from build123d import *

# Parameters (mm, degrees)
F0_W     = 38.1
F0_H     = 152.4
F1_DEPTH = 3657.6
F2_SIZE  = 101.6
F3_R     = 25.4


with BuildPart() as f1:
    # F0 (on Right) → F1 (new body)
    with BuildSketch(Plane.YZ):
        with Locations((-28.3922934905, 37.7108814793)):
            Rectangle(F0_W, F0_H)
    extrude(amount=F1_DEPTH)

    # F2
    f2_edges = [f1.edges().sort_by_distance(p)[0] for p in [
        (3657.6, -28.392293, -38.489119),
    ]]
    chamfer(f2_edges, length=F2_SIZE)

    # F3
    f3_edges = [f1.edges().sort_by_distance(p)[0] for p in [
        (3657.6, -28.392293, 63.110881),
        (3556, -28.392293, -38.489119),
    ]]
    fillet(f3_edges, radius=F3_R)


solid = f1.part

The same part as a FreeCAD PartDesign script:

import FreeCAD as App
import Part
import Sketcher

V = App.Vector
Q = App.Units.Quantity


def edges_at(feature, points):
    """Names of the edges that pass closest to the given points."""
    edges = feature.Shape.Edges
    near = lambda p: min(range(len(edges)), key=lambda i: edges[i].distToShape(Part.Vertex(*p))[0])
    return sorted({f"Edge{near(p) + 1}" for p in points})


def add_polygon(sketch, points):
    """Adds a closed chain of lines whose ends are joined by coincident constraints."""
    first, n = sketch.GeometryCount, len(points)
    for a, b in zip(points, points[1:] + points[:1]):
        sketch.addGeometry(Part.LineSegment(App.Vector(*a, 0), App.Vector(*b, 0)), False)
    for i in range(n):
        sketch.addConstraint(Sketcher.Constraint("Coincident", first + i, 2, first + (i + 1) % n, 1))

doc = App.newDocument("Part")
body = doc.addObject("PartDesign::Body", "Body")

sketch1 = doc.addObject("Sketcher::SketchObject", "Sketch")
body.addObject(sketch1)
sketch1.AttachmentSupport = (doc.YZ_Plane, [""])
sketch1.MapMode = "FlatFace"
add_polygon(sketch1, [(-47.442293, 113.910881), (-47.442293, -38.489119), (-9.342293, -38.489119), (-9.342293, 113.910881)])
sketch1.addConstraint(Sketcher.Constraint("Vertical", 0))
sketch1.addConstraint(Sketcher.Constraint("Horizontal", 1))
sketch1.addConstraint(Sketcher.Constraint("Vertical", 2))
sketch1.addConstraint(Sketcher.Constraint("Horizontal", 3))
sketch1.addConstraint(Sketcher.Constraint("DistanceY", 0, 2, 0, 1, Q("6 in")))
sketch1.addConstraint(Sketcher.Constraint("DistanceX", 1, 1, 1, 2, Q("1.5 in")))
sketch1.addConstraint(Sketcher.Constraint("DistanceY", 0, 2, -1, 1, Q("38.489119 mm")))
sketch1.addConstraint(Sketcher.Constraint("DistanceX", 0, 2, -1, 1, Q("47.442293 mm")))
pad1 = doc.addObject("PartDesign::Pad", "Pad")
body.addObject(pad1)
pad1.Profile = sketch1
pad1.Length = Q("144 in")
doc.recompute()

chamfer = doc.addObject("PartDesign::Chamfer", "Chamfer")
body.addObject(chamfer)
chamfer.Base = (pad1, edges_at(pad1, [(3657.6, -28.392, -38.489)]))
chamfer.Size = Q("4 in")
doc.recompute()

fillet = doc.addObject("PartDesign::Fillet", "Fillet")
body.addObject(fillet)
fillet.Base = (chamfer, edges_at(chamfer, [(3657.6, -28.392, 63.111), (3556, -28.392, -38.489)]))
fillet.Radius = Q("1 in")

doc.recompute()
